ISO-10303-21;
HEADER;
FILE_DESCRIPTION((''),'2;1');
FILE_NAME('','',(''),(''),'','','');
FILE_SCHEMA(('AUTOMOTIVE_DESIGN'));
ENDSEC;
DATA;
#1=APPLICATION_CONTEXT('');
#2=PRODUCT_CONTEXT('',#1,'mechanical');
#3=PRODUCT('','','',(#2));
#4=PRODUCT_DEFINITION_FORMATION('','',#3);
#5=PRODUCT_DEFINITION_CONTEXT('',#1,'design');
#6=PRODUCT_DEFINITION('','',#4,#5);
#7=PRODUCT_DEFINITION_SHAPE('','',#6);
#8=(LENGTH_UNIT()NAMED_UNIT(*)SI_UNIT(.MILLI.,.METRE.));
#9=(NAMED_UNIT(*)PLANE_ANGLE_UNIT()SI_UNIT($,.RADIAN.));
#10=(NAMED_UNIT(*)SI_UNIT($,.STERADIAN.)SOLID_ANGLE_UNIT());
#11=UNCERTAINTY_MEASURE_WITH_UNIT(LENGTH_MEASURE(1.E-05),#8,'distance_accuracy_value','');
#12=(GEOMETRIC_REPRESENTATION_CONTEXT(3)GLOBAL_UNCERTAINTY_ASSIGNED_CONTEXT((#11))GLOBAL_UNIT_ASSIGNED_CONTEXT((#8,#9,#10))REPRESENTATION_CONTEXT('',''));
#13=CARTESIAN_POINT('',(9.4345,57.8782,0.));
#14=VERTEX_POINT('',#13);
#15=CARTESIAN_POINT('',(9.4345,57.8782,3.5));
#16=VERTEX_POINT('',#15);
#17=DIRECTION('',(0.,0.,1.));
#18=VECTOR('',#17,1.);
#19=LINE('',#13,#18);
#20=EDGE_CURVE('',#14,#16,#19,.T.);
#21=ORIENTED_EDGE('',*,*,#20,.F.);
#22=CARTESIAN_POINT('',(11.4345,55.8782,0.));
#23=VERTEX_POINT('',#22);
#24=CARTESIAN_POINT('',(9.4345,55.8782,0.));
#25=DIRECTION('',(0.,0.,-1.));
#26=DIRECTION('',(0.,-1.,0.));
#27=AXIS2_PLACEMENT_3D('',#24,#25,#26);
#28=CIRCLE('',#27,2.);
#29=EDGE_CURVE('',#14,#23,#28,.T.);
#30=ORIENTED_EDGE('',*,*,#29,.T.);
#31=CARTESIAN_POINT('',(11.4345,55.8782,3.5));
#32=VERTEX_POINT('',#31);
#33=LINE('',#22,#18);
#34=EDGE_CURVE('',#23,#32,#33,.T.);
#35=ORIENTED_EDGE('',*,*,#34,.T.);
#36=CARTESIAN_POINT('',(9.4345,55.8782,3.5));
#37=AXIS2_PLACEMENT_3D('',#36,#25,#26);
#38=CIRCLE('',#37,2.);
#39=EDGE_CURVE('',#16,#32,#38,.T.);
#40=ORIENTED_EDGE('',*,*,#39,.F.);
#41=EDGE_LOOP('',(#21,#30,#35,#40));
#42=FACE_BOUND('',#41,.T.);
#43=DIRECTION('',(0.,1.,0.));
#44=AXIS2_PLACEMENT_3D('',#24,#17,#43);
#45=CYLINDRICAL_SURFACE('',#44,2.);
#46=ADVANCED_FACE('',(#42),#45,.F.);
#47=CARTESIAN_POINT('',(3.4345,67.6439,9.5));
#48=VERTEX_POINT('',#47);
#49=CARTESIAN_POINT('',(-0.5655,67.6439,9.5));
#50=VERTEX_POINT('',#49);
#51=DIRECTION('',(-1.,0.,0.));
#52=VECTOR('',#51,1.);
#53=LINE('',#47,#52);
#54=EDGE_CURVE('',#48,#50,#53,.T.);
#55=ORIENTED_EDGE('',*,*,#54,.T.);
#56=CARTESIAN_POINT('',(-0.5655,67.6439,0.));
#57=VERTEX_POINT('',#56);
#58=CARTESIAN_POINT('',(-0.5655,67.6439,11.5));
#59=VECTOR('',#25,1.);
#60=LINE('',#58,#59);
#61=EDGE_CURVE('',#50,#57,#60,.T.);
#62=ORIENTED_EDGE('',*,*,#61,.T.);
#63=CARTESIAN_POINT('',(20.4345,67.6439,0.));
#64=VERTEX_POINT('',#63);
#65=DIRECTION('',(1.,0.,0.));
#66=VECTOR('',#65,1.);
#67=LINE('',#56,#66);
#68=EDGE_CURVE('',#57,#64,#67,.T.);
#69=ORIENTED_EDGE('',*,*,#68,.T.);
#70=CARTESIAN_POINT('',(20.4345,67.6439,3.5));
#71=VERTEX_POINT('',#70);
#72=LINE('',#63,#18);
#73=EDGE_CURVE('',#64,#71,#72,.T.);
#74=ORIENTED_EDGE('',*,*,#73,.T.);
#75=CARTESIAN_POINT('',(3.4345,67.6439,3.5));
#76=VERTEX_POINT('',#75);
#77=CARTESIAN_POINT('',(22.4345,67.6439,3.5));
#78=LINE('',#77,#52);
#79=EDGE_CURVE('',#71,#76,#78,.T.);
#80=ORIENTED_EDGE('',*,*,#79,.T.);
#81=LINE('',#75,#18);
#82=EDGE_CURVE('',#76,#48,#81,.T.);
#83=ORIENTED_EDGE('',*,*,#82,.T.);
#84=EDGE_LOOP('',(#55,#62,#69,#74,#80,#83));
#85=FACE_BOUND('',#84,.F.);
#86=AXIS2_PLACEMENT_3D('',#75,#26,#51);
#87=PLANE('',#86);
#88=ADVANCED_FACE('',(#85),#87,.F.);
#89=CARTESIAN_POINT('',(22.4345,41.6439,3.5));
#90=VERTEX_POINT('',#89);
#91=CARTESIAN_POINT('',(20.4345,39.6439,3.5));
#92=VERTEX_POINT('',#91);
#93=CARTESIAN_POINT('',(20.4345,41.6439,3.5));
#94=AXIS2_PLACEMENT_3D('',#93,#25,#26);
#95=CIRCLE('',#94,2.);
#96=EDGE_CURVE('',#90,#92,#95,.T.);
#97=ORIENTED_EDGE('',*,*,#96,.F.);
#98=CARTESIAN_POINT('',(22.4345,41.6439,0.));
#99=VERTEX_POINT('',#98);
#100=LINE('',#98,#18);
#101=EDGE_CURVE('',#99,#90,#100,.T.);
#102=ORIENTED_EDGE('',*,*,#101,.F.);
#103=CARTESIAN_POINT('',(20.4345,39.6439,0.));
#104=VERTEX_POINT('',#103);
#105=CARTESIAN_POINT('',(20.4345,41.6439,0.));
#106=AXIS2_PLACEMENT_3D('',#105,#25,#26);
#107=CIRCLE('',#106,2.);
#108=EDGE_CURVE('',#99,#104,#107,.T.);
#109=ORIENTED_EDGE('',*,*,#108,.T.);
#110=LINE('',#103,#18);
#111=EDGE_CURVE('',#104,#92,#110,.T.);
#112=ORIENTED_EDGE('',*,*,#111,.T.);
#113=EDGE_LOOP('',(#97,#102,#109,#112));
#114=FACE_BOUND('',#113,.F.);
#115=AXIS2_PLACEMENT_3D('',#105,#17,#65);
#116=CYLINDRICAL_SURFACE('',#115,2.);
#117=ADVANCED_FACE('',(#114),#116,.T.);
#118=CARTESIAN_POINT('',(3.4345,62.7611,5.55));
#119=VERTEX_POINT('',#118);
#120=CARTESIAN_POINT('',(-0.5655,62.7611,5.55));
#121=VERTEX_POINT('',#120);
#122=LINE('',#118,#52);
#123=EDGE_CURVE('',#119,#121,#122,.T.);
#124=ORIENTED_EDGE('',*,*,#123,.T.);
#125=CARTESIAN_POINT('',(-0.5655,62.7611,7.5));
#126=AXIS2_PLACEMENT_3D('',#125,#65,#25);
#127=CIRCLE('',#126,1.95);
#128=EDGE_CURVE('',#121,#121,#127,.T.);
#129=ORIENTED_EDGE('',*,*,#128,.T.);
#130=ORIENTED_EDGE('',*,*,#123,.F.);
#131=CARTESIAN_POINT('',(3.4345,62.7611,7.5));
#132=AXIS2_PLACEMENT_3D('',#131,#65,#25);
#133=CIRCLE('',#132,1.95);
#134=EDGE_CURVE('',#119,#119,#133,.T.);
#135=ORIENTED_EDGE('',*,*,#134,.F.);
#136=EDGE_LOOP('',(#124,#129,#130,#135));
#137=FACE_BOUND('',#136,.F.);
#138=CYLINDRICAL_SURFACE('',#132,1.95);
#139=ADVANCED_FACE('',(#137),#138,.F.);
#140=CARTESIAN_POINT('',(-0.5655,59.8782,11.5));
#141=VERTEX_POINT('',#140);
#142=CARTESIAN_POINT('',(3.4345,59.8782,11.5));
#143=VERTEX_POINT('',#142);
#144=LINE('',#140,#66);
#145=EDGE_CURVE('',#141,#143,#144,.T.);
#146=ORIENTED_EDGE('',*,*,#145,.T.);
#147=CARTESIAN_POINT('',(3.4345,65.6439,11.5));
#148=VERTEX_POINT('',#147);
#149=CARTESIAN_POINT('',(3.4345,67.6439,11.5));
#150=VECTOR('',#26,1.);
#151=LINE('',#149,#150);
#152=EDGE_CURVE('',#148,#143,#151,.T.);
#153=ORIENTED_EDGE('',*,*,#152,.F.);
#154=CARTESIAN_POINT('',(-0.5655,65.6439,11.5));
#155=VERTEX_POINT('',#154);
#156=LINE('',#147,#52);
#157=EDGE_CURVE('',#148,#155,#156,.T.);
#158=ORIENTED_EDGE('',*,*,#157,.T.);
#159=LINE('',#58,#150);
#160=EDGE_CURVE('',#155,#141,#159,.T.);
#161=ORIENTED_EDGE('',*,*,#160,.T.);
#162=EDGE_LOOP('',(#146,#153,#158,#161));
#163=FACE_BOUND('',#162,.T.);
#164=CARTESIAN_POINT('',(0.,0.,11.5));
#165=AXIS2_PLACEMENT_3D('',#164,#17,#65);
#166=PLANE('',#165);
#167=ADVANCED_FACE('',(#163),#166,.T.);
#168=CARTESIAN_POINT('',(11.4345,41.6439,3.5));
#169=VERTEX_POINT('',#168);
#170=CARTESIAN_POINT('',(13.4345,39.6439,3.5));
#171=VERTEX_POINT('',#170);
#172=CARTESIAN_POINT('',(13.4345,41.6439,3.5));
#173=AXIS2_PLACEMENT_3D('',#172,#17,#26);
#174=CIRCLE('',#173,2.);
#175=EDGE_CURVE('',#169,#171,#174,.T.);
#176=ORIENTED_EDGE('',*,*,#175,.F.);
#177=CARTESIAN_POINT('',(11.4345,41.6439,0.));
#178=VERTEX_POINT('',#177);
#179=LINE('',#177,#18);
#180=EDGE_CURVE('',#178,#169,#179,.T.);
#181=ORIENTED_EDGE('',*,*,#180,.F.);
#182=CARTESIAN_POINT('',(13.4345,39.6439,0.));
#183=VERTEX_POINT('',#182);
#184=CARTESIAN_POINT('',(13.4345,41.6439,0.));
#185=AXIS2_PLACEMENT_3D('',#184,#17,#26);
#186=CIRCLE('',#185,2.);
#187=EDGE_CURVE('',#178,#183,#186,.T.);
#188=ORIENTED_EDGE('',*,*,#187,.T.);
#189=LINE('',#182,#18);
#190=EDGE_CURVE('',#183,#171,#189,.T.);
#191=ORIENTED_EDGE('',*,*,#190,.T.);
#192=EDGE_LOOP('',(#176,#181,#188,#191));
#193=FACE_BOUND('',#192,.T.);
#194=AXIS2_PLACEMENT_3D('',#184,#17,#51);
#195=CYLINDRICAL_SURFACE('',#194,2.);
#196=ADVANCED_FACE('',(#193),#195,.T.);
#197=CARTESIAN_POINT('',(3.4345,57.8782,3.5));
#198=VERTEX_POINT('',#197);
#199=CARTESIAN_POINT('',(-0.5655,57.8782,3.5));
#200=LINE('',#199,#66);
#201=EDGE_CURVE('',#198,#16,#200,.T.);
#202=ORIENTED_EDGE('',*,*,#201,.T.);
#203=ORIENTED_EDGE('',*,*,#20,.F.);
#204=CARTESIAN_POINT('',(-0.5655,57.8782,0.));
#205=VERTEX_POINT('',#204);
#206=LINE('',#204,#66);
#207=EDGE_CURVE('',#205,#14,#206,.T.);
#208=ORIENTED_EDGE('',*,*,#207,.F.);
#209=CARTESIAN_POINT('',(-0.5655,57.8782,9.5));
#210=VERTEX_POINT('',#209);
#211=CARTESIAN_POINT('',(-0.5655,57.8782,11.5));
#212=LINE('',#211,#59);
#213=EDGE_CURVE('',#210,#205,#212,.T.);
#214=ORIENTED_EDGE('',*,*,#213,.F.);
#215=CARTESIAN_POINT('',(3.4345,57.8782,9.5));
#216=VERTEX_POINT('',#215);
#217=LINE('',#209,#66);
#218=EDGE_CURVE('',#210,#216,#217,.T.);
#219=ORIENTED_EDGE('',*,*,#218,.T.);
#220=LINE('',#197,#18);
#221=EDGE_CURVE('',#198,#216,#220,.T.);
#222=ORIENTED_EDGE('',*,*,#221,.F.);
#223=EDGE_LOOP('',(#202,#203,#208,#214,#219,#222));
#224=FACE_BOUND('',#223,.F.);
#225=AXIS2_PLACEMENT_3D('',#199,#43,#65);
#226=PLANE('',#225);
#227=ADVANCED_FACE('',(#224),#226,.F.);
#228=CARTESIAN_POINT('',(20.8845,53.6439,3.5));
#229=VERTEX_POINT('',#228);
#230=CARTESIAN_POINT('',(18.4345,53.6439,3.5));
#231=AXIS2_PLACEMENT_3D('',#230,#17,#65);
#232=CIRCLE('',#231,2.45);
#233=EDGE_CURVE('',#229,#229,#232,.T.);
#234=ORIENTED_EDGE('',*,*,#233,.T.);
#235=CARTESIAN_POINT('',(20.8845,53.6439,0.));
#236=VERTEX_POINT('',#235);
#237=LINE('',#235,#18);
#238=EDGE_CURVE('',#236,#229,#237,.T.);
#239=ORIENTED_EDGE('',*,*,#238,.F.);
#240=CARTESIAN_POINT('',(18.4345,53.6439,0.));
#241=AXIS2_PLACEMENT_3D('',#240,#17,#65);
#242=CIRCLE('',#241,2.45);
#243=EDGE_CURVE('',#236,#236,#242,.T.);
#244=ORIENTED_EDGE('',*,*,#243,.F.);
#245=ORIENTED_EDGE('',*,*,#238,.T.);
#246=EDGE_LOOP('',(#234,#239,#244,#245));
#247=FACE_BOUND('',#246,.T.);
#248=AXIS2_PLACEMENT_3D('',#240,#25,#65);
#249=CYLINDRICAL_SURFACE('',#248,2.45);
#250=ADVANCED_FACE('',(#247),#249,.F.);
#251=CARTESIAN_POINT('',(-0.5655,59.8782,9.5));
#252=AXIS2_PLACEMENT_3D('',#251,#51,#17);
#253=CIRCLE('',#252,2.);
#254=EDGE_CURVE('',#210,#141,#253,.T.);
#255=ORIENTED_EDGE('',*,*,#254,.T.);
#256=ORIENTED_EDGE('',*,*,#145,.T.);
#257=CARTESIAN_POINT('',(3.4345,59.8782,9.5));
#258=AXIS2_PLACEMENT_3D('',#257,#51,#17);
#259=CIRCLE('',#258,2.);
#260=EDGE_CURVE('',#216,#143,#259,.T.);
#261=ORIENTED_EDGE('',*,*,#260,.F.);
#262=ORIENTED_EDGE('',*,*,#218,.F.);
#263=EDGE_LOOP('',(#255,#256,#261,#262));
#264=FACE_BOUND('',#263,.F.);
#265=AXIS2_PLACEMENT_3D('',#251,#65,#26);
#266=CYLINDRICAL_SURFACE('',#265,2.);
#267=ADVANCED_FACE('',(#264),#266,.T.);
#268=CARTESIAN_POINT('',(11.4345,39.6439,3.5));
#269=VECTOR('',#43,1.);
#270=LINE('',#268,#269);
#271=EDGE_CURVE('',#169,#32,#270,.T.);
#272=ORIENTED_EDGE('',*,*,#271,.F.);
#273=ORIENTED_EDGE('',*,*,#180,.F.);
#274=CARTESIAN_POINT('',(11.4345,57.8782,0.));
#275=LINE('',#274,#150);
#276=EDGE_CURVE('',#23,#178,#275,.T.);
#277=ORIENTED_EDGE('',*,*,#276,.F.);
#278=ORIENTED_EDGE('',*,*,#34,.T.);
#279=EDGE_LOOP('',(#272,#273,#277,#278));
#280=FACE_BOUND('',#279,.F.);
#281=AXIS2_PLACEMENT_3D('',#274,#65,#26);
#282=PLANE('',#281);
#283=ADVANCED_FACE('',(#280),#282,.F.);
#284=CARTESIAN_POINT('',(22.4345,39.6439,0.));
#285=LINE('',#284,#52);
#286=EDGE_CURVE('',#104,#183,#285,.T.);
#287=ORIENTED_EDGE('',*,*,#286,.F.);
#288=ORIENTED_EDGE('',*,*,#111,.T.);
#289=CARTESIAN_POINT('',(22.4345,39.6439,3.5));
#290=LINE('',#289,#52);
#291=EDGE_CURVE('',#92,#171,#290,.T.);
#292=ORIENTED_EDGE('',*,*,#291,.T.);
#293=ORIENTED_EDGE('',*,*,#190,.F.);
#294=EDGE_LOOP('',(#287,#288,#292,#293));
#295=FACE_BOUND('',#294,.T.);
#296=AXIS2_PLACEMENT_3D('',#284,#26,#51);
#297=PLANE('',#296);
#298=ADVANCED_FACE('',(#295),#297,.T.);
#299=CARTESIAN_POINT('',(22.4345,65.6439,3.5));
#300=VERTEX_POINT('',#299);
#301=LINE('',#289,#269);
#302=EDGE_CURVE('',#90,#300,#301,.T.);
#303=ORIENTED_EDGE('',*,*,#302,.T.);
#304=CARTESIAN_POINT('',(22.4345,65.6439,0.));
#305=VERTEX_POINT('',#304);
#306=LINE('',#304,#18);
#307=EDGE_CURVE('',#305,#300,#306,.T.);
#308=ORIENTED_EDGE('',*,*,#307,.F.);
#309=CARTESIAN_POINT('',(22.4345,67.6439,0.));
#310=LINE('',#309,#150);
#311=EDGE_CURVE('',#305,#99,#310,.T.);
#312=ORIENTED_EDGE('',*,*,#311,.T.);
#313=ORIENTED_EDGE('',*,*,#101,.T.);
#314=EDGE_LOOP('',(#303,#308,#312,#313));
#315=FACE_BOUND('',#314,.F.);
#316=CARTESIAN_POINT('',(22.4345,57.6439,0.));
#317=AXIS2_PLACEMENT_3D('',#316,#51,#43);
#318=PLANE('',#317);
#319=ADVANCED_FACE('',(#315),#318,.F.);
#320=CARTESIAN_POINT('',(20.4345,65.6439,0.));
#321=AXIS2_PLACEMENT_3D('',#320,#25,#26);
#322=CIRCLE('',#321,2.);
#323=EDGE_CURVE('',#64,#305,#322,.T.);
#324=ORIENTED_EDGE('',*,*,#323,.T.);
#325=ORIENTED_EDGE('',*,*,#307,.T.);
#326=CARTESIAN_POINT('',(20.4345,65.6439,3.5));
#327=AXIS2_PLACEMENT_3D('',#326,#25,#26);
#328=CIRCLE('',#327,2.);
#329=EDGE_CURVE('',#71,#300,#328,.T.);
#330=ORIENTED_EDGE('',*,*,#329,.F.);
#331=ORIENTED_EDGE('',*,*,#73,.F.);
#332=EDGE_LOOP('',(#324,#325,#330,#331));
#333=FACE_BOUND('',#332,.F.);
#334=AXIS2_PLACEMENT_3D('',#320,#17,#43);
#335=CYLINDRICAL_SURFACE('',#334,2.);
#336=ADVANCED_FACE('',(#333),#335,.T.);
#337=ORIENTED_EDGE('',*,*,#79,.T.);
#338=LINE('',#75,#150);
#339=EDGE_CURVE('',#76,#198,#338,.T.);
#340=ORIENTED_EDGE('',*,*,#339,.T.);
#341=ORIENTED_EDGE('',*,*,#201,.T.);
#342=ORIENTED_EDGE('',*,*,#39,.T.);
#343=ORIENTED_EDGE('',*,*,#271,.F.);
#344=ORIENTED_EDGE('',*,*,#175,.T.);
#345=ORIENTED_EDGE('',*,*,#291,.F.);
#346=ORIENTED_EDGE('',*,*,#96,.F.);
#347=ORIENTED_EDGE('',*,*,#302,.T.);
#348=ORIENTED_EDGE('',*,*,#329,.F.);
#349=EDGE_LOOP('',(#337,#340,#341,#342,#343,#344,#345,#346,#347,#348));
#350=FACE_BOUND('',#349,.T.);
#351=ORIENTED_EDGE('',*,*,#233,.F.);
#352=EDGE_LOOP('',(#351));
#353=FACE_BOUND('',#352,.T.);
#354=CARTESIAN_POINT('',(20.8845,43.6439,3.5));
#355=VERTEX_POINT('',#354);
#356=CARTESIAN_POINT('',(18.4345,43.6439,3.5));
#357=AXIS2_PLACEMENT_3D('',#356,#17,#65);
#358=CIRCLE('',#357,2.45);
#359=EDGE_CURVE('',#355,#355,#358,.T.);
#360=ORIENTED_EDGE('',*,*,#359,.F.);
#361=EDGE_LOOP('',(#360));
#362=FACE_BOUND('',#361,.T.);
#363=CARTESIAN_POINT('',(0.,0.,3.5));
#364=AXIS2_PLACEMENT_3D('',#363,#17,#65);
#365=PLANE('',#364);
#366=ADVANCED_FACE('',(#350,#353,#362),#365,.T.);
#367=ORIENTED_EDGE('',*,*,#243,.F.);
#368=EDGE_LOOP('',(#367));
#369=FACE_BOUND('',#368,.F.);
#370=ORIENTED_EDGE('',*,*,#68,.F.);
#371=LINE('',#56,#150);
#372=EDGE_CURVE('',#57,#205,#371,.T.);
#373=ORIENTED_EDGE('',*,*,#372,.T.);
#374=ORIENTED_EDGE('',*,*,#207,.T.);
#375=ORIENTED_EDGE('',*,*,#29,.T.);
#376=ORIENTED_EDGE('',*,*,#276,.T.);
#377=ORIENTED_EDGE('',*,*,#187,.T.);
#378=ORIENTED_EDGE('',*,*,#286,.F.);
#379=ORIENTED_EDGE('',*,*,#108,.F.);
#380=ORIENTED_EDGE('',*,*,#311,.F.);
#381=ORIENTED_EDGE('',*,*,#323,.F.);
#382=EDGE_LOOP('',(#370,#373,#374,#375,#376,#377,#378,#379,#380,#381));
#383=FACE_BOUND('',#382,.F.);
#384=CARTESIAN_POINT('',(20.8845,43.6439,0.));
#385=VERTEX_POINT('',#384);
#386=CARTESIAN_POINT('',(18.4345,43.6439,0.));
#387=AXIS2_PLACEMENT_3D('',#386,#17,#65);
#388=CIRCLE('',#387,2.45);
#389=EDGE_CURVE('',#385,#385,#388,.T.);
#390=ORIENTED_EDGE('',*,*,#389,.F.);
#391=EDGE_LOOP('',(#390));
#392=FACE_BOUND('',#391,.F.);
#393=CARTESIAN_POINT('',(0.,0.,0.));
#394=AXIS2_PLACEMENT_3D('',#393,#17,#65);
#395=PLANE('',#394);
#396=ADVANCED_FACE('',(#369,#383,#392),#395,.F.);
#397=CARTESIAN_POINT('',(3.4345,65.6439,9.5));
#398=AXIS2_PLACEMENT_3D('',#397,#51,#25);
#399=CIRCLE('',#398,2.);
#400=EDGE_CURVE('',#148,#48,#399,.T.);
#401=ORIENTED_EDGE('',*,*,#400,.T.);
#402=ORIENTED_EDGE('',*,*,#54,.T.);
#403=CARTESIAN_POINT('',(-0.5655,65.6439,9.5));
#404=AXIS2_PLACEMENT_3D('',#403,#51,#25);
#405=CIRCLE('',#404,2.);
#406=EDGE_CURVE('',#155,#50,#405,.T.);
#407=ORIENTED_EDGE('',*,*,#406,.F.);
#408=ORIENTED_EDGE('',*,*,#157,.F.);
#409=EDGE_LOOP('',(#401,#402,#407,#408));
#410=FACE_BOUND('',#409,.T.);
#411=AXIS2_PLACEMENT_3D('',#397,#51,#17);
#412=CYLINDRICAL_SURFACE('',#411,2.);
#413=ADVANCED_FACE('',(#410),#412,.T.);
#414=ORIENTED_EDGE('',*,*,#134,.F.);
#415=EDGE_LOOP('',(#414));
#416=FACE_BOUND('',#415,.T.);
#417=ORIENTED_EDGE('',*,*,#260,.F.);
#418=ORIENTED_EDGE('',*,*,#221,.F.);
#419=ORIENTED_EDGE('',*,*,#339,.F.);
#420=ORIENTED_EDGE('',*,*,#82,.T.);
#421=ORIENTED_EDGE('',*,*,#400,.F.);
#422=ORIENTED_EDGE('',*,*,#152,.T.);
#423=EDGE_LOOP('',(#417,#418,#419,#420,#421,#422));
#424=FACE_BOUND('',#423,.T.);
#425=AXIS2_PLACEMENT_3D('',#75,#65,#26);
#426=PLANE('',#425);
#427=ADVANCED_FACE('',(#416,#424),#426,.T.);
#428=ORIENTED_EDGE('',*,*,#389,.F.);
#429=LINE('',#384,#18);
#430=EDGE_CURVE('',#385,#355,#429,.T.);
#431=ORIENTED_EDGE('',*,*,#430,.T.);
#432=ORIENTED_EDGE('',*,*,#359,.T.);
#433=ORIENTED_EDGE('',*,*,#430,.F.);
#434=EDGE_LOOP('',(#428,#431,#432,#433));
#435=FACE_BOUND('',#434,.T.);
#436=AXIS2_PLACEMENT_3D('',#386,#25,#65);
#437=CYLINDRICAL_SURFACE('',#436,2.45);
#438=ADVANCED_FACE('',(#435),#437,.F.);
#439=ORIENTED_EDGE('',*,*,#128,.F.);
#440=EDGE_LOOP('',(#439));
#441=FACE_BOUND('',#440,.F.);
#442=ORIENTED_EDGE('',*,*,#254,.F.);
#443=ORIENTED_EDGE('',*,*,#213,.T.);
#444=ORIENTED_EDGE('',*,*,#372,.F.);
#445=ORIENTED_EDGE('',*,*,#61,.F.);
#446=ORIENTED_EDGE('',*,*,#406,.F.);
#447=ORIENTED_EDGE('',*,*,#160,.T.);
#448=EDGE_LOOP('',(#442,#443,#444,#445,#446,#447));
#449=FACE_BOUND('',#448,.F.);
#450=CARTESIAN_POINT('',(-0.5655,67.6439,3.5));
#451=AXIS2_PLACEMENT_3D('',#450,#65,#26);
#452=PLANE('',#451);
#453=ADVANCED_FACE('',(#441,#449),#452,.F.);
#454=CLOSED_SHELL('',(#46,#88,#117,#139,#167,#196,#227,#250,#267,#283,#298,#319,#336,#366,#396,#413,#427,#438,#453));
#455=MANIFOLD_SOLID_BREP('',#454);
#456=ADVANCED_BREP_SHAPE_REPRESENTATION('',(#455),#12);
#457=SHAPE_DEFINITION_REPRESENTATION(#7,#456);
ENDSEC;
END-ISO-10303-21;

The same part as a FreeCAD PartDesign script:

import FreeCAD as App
import Part
import Sketcher

V = App.Vector
Q = App.Units.Quantity


def edges_at(feature, points):
    """Names of the edges that pass closest to the given points."""
    edges = feature.Shape.Edges
    near = lambda p: min(range(len(edges)), key=lambda i: edges[i].distToShape(Part.Vertex(*p))[0])
    return sorted({f"Edge{near(p) + 1}" for p in points})

doc = App.newDocument("Part")
body = doc.addObject("PartDesign::Body", "Body")

sketch1 = doc.addObject("Sketcher::SketchObject", "Sketch")
body.addObject(sketch1)
sketch1.AttachmentSupport = (doc.XY_Plane, [""])
sketch1.MapMode = "FlatFace"
sketch1.addGeometry([
    Part.LineSegment(V(11.4, 57.9, 0), V(11.4, 39.6, 0)),
    Part.LineSegment(V(11.4, 39.6, 0), V(22.4, 39.6, 0)),
    Part.LineSegment(V(22.4, 39.6, 0), V(22.4, 67.6, 0)),
    Part.LineSegment(V(22.4, 67.6, 0), V(-0.6, 67.6, 0)),
    Part.LineSegment(V(-0.6, 67.6, 0), V(-0.6, 57.9, 0)),
    Part.LineSegment(V(-0.6, 57.9, 0), V(11.4, 57.9, 0)),
    Part.Circle(V(18.4, 53.6, 0), V(0, 0, 1), 2.5),
    Part.Circle(V(18.4, 43.6, 0), V(0, 0, 1), 2.5),
], False)
sketch1.addConstraint([
    Sketcher.Constraint("Coincident", 0, 2, 1, 1),
    Sketcher.Constraint("Coincident", 1, 2, 2, 1),
    Sketcher.Constraint("Coincident", 2, 2, 3, 1),
    Sketcher.Constraint("Coincident", 3, 2, 4, 1),
    Sketcher.Constraint("Coincident", 4, 2, 5, 1),
    Sketcher.Constraint("Coincident", 5, 2, 0, 1),
    Sketcher.Constraint("Vertical", 0),
    Sketcher.Constraint("Horizontal", 1),
    Sketcher.Constraint("Vertical", 2),
    Sketcher.Constraint("Horizontal", 3),
    Sketcher.Constraint("Vertical", 4),
    Sketcher.Constraint("Horizontal", 5),
    Sketcher.Constraint("Equal", 6, 7),
    Sketcher.Constraint("Vertical", 6, 3, 7, 3),
    Sketcher.Constraint("DistanceX", 1, 1, 1, 2, Q("11 mm")),
    Sketcher.Constraint("DistanceX", 5, 1, 5, 2, Q("12 mm")),
    Sketcher.Constraint("DistanceX", 0, 2, 7, 3, Q("7 mm")),
    Sketcher.Constraint("DistanceY", 0, 2, 7, 3, Q("4 mm")),
    Sketcher.Constraint("Diameter", 6, Q("4.9 mm")),
    Sketcher.Constraint("DistanceY", 2, 1, 2, 2, Q("28 mm")),
    Sketcher.Constraint("DistanceY", 7, 3, 6, 3, Q("10 mm")),
    Sketcher.Constraint("DistanceY", 0, 2, 0, 1, Q("18.2343 mm")),
    Sketcher.Constraint("DistanceY", -1, 1, 6, 3, Q("53.644 mm")),
    Sketcher.Constraint("DistanceX", -1, 1, 6, 3, Q("18.4345 mm")),
])
pad1 = doc.addObject("PartDesign::Pad", "Pad")
body.addObject(pad1)
pad1.Profile = sketch1
pad1.Length = 3.5

sketch2 = doc.addObject("Sketcher::SketchObject", "Sketch001")
body.addObject(sketch2)
sketch2.AttachmentSupport = (doc.XY_Plane, [""])
sketch2.MapMode = "FlatFace"
sketch2.AttachmentOffset = App.Placement(V(0, 0, 3.5), App.Rotation())
sketch2.addGeometry([
    Part.LineSegment(V(-0.6, 57.9, 0), V(3.4, 57.9, 0)),
    Part.LineSegment(V(3.4, 57.9, 0), V(3.4, 67.6, 0)),
    Part.LineSegment(V(3.4, 67.6, 0), V(-0.6, 67.6, 0)),
    Part.LineSegment(V(-0.6, 67.6, 0), V(-0.6, 57.9, 0)),
], False)
sketch2.addConstraint([
    Sketcher.Constraint("Coincident", 0, 2, 1, 1),
    Sketcher.Constraint("Coincident", 1, 2, 2, 1),
    Sketcher.Constraint("Coincident", 2, 2, 3, 1),
    Sketcher.Constraint("Coincident", 3, 2, 0, 1),
    Sketcher.Constraint("Horizontal", 0),
    Sketcher.Constraint("Vertical", 1),
    Sketcher.Constraint("Horizontal", 2),
    Sketcher.Constraint("Vertical", 3),
    Sketcher.Constraint("DistanceX", 0, 1, 0, 2, Q("4 mm")),
    Sketcher.Constraint("DistanceY", 1, 1, 1, 2, Q("9.7657 mm")),
    Sketcher.Constraint("DistanceY", -1, 1, 1, 2, Q("67.644 mm")),
    Sketcher.Constraint("DistanceX", -1, 1, 0, 2, Q("3.4345 mm")),
])
pad2 = doc.addObject("PartDesign::Pad", "Pad001")
body.addObject(pad2)
pad2.Profile = sketch2
pad2.Length = 8

sketch3 = doc.addObject("Sketcher::SketchObject", "Sketch002")
body.addObject(sketch3)
sketch3.AttachmentSupport = (doc.YZ_Plane, [""])
sketch3.MapMode = "FlatFace"
sketch3.AttachmentOffset = App.Placement(V(0, 0, 3.4345), App.Rotation())
sketch3.addGeometry(Part.Circle(V(62.8, 7.5, 0), V(0, 0, 1), 1.9), False)
sketch3.addConstraint([
    Sketcher.Constraint("Diameter", 0, Q("3.9 mm")),
    Sketcher.Constraint("DistanceY", -1, 1, 0, 3, Q("7.5 mm")),
    Sketcher.Constraint("DistanceX", -1, 1, 0, 3, Q("62.761 mm")),
])
pocket1 = doc.addObject("PartDesign::Pocket", "Pocket")
body.addObject(pocket1)
pocket1.Profile = sketch3
pocket1.Type = "ThroughAll"
doc.recompute()

fillet = doc.addObject("PartDesign::Fillet", "Fillet")
body.addObject(fillet)
fillet.Base = (pocket1, edges_at(pocket1, [
    (22.434, 39.644, 1.75),
    (22.434, 67.644, 1.75),
    (11.434, 57.878, 1.75),
    (11.434, 39.644, 1.75),
    (1.435, 57.878, 11.5),
    (1.435, 67.644, 11.5),
]))
fillet.Radius = 2

doc.recompute()
